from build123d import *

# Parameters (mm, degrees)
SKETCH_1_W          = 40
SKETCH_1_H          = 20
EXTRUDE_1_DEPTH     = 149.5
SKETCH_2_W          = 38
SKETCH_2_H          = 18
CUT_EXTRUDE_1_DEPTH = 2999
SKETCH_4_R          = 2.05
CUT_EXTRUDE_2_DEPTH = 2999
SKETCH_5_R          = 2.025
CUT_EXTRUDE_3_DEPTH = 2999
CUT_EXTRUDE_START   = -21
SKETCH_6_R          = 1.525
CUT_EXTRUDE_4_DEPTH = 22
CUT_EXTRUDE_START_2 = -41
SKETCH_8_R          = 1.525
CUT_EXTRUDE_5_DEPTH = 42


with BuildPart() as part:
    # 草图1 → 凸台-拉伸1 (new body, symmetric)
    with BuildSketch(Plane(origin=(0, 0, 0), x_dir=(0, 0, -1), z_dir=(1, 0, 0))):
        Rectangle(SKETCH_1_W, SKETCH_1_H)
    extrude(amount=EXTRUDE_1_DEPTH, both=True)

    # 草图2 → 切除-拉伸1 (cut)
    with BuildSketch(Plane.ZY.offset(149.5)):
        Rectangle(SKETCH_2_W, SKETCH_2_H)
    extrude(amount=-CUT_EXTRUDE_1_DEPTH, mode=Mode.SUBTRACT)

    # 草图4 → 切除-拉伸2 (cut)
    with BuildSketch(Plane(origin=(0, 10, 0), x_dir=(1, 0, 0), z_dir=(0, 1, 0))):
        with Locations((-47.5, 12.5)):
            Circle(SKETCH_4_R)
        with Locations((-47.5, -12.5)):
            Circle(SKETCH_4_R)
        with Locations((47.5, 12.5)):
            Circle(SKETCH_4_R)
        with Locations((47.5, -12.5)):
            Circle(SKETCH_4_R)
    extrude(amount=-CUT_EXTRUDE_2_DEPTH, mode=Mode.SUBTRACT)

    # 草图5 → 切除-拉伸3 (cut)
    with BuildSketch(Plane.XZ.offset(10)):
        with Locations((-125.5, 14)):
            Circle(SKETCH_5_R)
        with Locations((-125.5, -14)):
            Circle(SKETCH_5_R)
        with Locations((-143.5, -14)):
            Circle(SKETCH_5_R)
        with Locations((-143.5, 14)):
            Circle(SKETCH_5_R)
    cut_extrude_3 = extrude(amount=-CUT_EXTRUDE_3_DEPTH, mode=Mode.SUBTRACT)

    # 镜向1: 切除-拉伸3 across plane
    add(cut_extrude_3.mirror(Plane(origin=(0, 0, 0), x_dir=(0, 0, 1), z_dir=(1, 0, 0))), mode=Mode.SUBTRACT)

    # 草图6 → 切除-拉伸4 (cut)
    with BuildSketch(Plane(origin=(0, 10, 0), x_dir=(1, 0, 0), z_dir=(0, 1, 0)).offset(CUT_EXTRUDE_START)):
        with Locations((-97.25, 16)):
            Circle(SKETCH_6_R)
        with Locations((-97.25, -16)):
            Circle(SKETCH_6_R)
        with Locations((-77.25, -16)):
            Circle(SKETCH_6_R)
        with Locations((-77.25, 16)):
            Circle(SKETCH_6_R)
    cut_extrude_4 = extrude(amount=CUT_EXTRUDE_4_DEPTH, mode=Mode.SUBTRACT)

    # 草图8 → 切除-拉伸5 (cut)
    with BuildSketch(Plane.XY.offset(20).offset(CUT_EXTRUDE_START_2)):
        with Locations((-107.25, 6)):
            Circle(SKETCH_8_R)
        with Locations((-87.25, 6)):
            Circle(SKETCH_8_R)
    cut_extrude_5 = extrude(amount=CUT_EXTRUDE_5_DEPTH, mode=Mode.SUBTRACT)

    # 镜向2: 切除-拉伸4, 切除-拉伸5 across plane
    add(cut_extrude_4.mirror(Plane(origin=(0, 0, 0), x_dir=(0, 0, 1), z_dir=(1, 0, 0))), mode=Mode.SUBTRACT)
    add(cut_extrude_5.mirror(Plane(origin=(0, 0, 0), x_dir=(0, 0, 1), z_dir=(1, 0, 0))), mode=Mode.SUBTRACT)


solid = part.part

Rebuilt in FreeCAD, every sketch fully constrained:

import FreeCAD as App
import Part
import Sketcher
from FreeCAD import Vector
Q = App.Units.Quantity


def add_polygon(sketch, points):
    """Adds a closed chain of lines whose ends are joined by coincident constraints."""
    first, n = sketch.GeometryCount, len(points)
    for a, b in zip(points, points[1:] + points[:1]):
        sketch.addGeometry(Part.LineSegment(App.Vector(*a, 0), App.Vector(*b, 0)), False)
    for i in range(n):
        sketch.addConstraint(Sketcher.Constraint("Coincident", first + i, 2, first + (i + 1) % n, 1))

doc = App.newDocument("Part")
body = doc.addObject("PartDesign::Body", "Body")

# Sketch on YZ plane
sketch1 = doc.addObject("Sketcher::SketchObject", "Sketch")
body.addObject(sketch1)
sketch1.AttachmentSupport = (doc.YZ_Plane, [""])
sketch1.MapMode = "FlatFace"
add_polygon(sketch1, [(10, 20), (-10, 20), (-10, -20), (10, -20)])  # lines 0-3
sketch1.addConstraint(Sketcher.Constraint("Horizontal", 0))
sketch1.addConstraint(Sketcher.Constraint("Vertical", 1))
sketch1.addConstraint(Sketcher.Constraint("Horizontal", 2))
sketch1.addConstraint(Sketcher.Constraint("Vertical", 3))
sketch1.addConstraint(Sketcher.Constraint("Symmetric", 0, 2, 2, 2, -1, 1))
sketch1.addConstraint(Sketcher.Constraint("DistanceX", 0, 2, 0, 1, Q("20 mm")))
sketch1.addConstraint(Sketcher.Constraint("DistanceY", 1, 2, 1, 1, Q("40 mm")))
pad1 = doc.addObject("PartDesign::Pad", "Pad")
body.addObject(pad1)
pad1.Profile = sketch1
pad1.Length = 299
pad1.Midplane = True

# Sketch on YZ plane
sketch2 = doc.addObject("Sketcher::SketchObject", "Sketch001")
body.addObject(sketch2)
sketch2.AttachmentSupport = (doc.YZ_Plane, [""])
sketch2.MapMode = "FlatFace"
sketch2.AttachmentOffset = App.Placement(Vector(0, 0, -149.5), App.Rotation())
add_polygon(sketch2, [(9, -19), (-9, -19), (-9, 19), (9, 19)])  # lines 0-3
sketch2.addConstraint(Sketcher.Constraint("Horizontal", 0))
sketch2.addConstraint(Sketcher.Constraint("Vertical", 1))
sketch2.addConstraint(Sketcher.Constraint("Horizontal", 2))
sketch2.addConstraint(Sketcher.Constraint("Vertical", 3))
sketch2.addConstraint(Sketcher.Constraint("Symmetric", 0, 2, 2, 2, -1, 1))
sketch2.addConstraint(Sketcher.Constraint("DistanceX", 0, 2, 0, 1, Q("18 mm")))
sketch2.addConstraint(Sketcher.Constraint("DistanceY", 1, 1, 1, 2, Q("38 mm")))
pocket1 = doc.addObject("PartDesign::Pocket", "Pocket")
body.addObject(pocket1)
pocket1.Profile = sketch2
pocket1.Length = 2999
pocket1.Reversed = True

# Sketch on XZ plane
sketch3 = doc.addObject("Sketcher::SketchObject", "Sketch002")
body.addObject(sketch3)
sketch3.AttachmentSupport = (doc.XZ_Plane, [""])
sketch3.MapMode = "FlatFace"
sketch3.AttachmentOffset = App.Placement(Vector(0, 0, -10), App.Rotation())
sketch3.addGeometry(Part.Circle(Vector(-47.5, -12.5, 0), Vector(0, 0, 1), 2), False)
sketch3.addGeometry(Part.Circle(Vector(-47.5, 12.5, 0), Vector(0, 0, 1), 2), False)
sketch3.addGeometry(Part.Circle(Vector(47.5, -12.5, 0), Vector(0, 0, 1), 2), False)
sketch3.addGeometry(Part.Circle(Vector(47.5, 12.5, 0), Vector(0, 0, 1), 2), False)
sketch3.addConstraint(Sketcher.Constraint("Equal", 0, 1))
sketch3.addConstraint(Sketcher.Constraint("Equal", 1, 2))
sketch3.addConstraint(Sketcher.Constraint("Equal", 2, 3))
sketch3.addConstraint(Sketcher.Constraint("Symmetric", 1, 3, 2, 3, -1, 1))
sketch3.addConstraint(Sketcher.Constraint("Symmetric", 0, 3, 3, 3, -1, 1))
sketch3.addConstraint(Sketcher.Constraint("Symmetric", 0, 3, 2, 3, -2))
sketch3.addConstraint(Sketcher.Constraint("Diameter", 0, Q("4.1 mm")))
sketch3.addConstraint(Sketcher.Constraint("DistanceY", 0, 3, 1, 3, Q("25 mm")))
sketch3.addConstraint(Sketcher.Constraint("DistanceX", 0, 3, 2, 3, Q("95 mm")))
pocket2 = doc.addObject("PartDesign::Pocket", "Pocket001")
body.addObject(pocket2)
pocket2.Profile = sketch3
pocket2.Length = 2999
pocket2.Reversed = True

# Sketch on XZ plane
sketch4 = doc.addObject("Sketcher::SketchObject", "Sketch003")
body.addObject(sketch4)
sketch4.AttachmentSupport = (doc.XZ_Plane, [""])
sketch4.MapMode = "FlatFace"
sketch4.AttachmentOffset = App.Placement(Vector(0, 0, 10), App.Rotation())
sketch4.addGeometry(Part.Circle(Vector(-125.5, 14, 0), Vector(0, 0, 1), 2), False)
sketch4.addGeometry(Part.Circle(Vector(-125.5, -14, 0), Vector(0, 0, 1), 2), False)
sketch4.addGeometry(Part.Circle(Vector(-143.5, -14, 0), Vector(0, 0, 1), 2), False)
sketch4.addGeometry(Part.Circle(Vector(-143.5, 14, 0), Vector(0, 0, 1), 2), False)
sketch4.addConstraint(Sketcher.Constraint("Equal", 0, 1))
sketch4.addConstraint(Sketcher.Constraint("Equal", 1, 2))
sketch4.addConstraint(Sketcher.Constraint("Equal", 2, 3))
sketch4.addConstraint(Sketcher.Constraint("Symmetric", 0, 3, 1, 3, -1))
sketch4.addConstraint(Sketcher.Constraint("Symmetric", 2, 3, 3, 3, -1))
sketch4.addConstraint(Sketcher.Constraint("Horizontal", 1, 3, 2, 3))
sketch4.addConstraint(Sketcher.Constraint("Diameter", 0, Q("4.05 mm")))
sketch4.addConstraint(Sketcher.Constraint("DistanceY", -1, 1, 0, 3, Q("14 mm")))
sketch4.addConstraint(Sketcher.Constraint("DistanceX", 2, 3, 1, 3, Q("18 mm")))
sketch4.addConstraint(Sketcher.Constraint("DistanceX", 0, 3, -1, 1, Q("125.5 mm")))
pocket3 = doc.addObject("PartDesign::Pocket", "Pocket002")
body.addObject(pocket3)
pocket3.Profile = sketch4
pocket3.Length = 2999
doc.recompute()

mirrored = doc.addObject("PartDesign::Mirrored", "Mirrored")
body.addObject(mirrored)
mirrored.Originals = [pocket3]
mirrored.MirrorPlane = (doc.YZ_Plane, [""])
body.Tip = mirrored

# Sketch on XZ plane
sketch5 = doc.addObject("Sketcher::SketchObject", "Sketch004")
body.addObject(sketch5)
sketch5.AttachmentSupport = (doc.XZ_Plane, [""])
sketch5.MapMode = "FlatFace"
sketch5.AttachmentOffset = App.Placement(Vector(0, 0, 11), App.Rotation())
sketch5.addGeometry(Part.Circle(Vector(-97.2, -16, 0), Vector(0, 0, 1), 1.5), False)
sketch5.addGeometry(Part.Circle(Vector(-97.2, 16, 0), Vector(0, 0, 1), 1.5), False)
sketch5.addGeometry(Part.Circle(Vector(-77.2, 16, 0), Vector(0, 0, 1), 1.5), False)
sketch5.addGeometry(Part.Circle(Vector(-77.2, -16, 0), Vector(0, 0, 1), 1.5), False)
sketch5.addConstraint(Sketcher.Constraint("Equal", 0, 1))
sketch5.addConstraint(Sketcher.Constraint("Equal", 1, 2))
sketch5.addConstraint(Sketcher.Constraint("Equal", 2, 3))
sketch5.addConstraint(Sketcher.Constraint("Symmetric", 0, 3, 1, 3, -1))
sketch5.addConstraint(Sketcher.Constraint("Symmetric", 2, 3, 3, 3, -1))
sketch5.addConstraint(Sketcher.Constraint("Horizontal", 1, 3, 2, 3))
sketch5.addConstraint(Sketcher.Constraint("Diameter", 0, Q("3.05 mm")))
sketch5.addConstraint(Sketcher.Constraint("DistanceY", 0, 3, -1, 1, Q("16 mm")))
sketch5.addConstraint(Sketcher.Constraint("DistanceX", 1, 3, 2, 3, Q("20 mm")))
sketch5.addConstraint(Sketcher.Constraint("DistanceX", 0, 3, -1, 1, Q("97.25 mm")))
pocket4 = doc.addObject("PartDesign::Pocket", "Pocket003")
body.addObject(pocket4)
pocket4.Profile = sketch5
pocket4.Length = 22

# Sketch on XY plane
sketch6 = doc.addObject("Sketcher::SketchObject", "Sketch005")
body.addObject(sketch6)
sketch6.AttachmentSupport = (doc.XY_Plane, [""])
sketch6.MapMode = "FlatFace"
sketch6.AttachmentOffset = App.Placement(Vector(0, 0, -21), App.Rotation())
sketch6.addGeometry(Part.Circle(Vector(-107.2, 6, 0), Vector(0, 0, 1), 1.5), False)
sketch6.addGeometry(Part.Circle(Vector(-87.2, 6, 0), Vector(0, 0, 1), 1.5), False)
sketch6.addConstraint(Sketcher.Constraint("Equal", 0, 1))
sketch6.addConstraint(Sketcher.Constraint("Horizontal", 0, 3, 1, 3))
sketch6.addConstraint(Sketcher.Constraint("Diameter", 0, Q("3.05 mm")))
sketch6.addConstraint(Sketcher.Constraint("DistanceY", -1, 1, 0, 3, Q("6 mm")))
sketch6.addConstraint(Sketcher.Constraint("DistanceX", 0, 3, 1, 3, Q("20 mm")))
sketch6.addConstraint(Sketcher.Constraint("DistanceX", 0, 3, -1, 1, Q("107.25 mm")))
pocket5 = doc.addObject("PartDesign::Pocket", "Pocket004")
body.addObject(pocket5)
pocket5.Profile = sketch6
pocket5.Length = 42
pocket5.Reversed = True
doc.recompute()

mirrored2 = doc.addObject("PartDesign::Mirrored", "Mirrored001")
body.addObject(mirrored2)
mirrored2.Originals = [pocket4, pocket5]
mirrored2.MirrorPlane = (doc.YZ_Plane, [""])
body.Tip = mirrored2

doc.recompute()
